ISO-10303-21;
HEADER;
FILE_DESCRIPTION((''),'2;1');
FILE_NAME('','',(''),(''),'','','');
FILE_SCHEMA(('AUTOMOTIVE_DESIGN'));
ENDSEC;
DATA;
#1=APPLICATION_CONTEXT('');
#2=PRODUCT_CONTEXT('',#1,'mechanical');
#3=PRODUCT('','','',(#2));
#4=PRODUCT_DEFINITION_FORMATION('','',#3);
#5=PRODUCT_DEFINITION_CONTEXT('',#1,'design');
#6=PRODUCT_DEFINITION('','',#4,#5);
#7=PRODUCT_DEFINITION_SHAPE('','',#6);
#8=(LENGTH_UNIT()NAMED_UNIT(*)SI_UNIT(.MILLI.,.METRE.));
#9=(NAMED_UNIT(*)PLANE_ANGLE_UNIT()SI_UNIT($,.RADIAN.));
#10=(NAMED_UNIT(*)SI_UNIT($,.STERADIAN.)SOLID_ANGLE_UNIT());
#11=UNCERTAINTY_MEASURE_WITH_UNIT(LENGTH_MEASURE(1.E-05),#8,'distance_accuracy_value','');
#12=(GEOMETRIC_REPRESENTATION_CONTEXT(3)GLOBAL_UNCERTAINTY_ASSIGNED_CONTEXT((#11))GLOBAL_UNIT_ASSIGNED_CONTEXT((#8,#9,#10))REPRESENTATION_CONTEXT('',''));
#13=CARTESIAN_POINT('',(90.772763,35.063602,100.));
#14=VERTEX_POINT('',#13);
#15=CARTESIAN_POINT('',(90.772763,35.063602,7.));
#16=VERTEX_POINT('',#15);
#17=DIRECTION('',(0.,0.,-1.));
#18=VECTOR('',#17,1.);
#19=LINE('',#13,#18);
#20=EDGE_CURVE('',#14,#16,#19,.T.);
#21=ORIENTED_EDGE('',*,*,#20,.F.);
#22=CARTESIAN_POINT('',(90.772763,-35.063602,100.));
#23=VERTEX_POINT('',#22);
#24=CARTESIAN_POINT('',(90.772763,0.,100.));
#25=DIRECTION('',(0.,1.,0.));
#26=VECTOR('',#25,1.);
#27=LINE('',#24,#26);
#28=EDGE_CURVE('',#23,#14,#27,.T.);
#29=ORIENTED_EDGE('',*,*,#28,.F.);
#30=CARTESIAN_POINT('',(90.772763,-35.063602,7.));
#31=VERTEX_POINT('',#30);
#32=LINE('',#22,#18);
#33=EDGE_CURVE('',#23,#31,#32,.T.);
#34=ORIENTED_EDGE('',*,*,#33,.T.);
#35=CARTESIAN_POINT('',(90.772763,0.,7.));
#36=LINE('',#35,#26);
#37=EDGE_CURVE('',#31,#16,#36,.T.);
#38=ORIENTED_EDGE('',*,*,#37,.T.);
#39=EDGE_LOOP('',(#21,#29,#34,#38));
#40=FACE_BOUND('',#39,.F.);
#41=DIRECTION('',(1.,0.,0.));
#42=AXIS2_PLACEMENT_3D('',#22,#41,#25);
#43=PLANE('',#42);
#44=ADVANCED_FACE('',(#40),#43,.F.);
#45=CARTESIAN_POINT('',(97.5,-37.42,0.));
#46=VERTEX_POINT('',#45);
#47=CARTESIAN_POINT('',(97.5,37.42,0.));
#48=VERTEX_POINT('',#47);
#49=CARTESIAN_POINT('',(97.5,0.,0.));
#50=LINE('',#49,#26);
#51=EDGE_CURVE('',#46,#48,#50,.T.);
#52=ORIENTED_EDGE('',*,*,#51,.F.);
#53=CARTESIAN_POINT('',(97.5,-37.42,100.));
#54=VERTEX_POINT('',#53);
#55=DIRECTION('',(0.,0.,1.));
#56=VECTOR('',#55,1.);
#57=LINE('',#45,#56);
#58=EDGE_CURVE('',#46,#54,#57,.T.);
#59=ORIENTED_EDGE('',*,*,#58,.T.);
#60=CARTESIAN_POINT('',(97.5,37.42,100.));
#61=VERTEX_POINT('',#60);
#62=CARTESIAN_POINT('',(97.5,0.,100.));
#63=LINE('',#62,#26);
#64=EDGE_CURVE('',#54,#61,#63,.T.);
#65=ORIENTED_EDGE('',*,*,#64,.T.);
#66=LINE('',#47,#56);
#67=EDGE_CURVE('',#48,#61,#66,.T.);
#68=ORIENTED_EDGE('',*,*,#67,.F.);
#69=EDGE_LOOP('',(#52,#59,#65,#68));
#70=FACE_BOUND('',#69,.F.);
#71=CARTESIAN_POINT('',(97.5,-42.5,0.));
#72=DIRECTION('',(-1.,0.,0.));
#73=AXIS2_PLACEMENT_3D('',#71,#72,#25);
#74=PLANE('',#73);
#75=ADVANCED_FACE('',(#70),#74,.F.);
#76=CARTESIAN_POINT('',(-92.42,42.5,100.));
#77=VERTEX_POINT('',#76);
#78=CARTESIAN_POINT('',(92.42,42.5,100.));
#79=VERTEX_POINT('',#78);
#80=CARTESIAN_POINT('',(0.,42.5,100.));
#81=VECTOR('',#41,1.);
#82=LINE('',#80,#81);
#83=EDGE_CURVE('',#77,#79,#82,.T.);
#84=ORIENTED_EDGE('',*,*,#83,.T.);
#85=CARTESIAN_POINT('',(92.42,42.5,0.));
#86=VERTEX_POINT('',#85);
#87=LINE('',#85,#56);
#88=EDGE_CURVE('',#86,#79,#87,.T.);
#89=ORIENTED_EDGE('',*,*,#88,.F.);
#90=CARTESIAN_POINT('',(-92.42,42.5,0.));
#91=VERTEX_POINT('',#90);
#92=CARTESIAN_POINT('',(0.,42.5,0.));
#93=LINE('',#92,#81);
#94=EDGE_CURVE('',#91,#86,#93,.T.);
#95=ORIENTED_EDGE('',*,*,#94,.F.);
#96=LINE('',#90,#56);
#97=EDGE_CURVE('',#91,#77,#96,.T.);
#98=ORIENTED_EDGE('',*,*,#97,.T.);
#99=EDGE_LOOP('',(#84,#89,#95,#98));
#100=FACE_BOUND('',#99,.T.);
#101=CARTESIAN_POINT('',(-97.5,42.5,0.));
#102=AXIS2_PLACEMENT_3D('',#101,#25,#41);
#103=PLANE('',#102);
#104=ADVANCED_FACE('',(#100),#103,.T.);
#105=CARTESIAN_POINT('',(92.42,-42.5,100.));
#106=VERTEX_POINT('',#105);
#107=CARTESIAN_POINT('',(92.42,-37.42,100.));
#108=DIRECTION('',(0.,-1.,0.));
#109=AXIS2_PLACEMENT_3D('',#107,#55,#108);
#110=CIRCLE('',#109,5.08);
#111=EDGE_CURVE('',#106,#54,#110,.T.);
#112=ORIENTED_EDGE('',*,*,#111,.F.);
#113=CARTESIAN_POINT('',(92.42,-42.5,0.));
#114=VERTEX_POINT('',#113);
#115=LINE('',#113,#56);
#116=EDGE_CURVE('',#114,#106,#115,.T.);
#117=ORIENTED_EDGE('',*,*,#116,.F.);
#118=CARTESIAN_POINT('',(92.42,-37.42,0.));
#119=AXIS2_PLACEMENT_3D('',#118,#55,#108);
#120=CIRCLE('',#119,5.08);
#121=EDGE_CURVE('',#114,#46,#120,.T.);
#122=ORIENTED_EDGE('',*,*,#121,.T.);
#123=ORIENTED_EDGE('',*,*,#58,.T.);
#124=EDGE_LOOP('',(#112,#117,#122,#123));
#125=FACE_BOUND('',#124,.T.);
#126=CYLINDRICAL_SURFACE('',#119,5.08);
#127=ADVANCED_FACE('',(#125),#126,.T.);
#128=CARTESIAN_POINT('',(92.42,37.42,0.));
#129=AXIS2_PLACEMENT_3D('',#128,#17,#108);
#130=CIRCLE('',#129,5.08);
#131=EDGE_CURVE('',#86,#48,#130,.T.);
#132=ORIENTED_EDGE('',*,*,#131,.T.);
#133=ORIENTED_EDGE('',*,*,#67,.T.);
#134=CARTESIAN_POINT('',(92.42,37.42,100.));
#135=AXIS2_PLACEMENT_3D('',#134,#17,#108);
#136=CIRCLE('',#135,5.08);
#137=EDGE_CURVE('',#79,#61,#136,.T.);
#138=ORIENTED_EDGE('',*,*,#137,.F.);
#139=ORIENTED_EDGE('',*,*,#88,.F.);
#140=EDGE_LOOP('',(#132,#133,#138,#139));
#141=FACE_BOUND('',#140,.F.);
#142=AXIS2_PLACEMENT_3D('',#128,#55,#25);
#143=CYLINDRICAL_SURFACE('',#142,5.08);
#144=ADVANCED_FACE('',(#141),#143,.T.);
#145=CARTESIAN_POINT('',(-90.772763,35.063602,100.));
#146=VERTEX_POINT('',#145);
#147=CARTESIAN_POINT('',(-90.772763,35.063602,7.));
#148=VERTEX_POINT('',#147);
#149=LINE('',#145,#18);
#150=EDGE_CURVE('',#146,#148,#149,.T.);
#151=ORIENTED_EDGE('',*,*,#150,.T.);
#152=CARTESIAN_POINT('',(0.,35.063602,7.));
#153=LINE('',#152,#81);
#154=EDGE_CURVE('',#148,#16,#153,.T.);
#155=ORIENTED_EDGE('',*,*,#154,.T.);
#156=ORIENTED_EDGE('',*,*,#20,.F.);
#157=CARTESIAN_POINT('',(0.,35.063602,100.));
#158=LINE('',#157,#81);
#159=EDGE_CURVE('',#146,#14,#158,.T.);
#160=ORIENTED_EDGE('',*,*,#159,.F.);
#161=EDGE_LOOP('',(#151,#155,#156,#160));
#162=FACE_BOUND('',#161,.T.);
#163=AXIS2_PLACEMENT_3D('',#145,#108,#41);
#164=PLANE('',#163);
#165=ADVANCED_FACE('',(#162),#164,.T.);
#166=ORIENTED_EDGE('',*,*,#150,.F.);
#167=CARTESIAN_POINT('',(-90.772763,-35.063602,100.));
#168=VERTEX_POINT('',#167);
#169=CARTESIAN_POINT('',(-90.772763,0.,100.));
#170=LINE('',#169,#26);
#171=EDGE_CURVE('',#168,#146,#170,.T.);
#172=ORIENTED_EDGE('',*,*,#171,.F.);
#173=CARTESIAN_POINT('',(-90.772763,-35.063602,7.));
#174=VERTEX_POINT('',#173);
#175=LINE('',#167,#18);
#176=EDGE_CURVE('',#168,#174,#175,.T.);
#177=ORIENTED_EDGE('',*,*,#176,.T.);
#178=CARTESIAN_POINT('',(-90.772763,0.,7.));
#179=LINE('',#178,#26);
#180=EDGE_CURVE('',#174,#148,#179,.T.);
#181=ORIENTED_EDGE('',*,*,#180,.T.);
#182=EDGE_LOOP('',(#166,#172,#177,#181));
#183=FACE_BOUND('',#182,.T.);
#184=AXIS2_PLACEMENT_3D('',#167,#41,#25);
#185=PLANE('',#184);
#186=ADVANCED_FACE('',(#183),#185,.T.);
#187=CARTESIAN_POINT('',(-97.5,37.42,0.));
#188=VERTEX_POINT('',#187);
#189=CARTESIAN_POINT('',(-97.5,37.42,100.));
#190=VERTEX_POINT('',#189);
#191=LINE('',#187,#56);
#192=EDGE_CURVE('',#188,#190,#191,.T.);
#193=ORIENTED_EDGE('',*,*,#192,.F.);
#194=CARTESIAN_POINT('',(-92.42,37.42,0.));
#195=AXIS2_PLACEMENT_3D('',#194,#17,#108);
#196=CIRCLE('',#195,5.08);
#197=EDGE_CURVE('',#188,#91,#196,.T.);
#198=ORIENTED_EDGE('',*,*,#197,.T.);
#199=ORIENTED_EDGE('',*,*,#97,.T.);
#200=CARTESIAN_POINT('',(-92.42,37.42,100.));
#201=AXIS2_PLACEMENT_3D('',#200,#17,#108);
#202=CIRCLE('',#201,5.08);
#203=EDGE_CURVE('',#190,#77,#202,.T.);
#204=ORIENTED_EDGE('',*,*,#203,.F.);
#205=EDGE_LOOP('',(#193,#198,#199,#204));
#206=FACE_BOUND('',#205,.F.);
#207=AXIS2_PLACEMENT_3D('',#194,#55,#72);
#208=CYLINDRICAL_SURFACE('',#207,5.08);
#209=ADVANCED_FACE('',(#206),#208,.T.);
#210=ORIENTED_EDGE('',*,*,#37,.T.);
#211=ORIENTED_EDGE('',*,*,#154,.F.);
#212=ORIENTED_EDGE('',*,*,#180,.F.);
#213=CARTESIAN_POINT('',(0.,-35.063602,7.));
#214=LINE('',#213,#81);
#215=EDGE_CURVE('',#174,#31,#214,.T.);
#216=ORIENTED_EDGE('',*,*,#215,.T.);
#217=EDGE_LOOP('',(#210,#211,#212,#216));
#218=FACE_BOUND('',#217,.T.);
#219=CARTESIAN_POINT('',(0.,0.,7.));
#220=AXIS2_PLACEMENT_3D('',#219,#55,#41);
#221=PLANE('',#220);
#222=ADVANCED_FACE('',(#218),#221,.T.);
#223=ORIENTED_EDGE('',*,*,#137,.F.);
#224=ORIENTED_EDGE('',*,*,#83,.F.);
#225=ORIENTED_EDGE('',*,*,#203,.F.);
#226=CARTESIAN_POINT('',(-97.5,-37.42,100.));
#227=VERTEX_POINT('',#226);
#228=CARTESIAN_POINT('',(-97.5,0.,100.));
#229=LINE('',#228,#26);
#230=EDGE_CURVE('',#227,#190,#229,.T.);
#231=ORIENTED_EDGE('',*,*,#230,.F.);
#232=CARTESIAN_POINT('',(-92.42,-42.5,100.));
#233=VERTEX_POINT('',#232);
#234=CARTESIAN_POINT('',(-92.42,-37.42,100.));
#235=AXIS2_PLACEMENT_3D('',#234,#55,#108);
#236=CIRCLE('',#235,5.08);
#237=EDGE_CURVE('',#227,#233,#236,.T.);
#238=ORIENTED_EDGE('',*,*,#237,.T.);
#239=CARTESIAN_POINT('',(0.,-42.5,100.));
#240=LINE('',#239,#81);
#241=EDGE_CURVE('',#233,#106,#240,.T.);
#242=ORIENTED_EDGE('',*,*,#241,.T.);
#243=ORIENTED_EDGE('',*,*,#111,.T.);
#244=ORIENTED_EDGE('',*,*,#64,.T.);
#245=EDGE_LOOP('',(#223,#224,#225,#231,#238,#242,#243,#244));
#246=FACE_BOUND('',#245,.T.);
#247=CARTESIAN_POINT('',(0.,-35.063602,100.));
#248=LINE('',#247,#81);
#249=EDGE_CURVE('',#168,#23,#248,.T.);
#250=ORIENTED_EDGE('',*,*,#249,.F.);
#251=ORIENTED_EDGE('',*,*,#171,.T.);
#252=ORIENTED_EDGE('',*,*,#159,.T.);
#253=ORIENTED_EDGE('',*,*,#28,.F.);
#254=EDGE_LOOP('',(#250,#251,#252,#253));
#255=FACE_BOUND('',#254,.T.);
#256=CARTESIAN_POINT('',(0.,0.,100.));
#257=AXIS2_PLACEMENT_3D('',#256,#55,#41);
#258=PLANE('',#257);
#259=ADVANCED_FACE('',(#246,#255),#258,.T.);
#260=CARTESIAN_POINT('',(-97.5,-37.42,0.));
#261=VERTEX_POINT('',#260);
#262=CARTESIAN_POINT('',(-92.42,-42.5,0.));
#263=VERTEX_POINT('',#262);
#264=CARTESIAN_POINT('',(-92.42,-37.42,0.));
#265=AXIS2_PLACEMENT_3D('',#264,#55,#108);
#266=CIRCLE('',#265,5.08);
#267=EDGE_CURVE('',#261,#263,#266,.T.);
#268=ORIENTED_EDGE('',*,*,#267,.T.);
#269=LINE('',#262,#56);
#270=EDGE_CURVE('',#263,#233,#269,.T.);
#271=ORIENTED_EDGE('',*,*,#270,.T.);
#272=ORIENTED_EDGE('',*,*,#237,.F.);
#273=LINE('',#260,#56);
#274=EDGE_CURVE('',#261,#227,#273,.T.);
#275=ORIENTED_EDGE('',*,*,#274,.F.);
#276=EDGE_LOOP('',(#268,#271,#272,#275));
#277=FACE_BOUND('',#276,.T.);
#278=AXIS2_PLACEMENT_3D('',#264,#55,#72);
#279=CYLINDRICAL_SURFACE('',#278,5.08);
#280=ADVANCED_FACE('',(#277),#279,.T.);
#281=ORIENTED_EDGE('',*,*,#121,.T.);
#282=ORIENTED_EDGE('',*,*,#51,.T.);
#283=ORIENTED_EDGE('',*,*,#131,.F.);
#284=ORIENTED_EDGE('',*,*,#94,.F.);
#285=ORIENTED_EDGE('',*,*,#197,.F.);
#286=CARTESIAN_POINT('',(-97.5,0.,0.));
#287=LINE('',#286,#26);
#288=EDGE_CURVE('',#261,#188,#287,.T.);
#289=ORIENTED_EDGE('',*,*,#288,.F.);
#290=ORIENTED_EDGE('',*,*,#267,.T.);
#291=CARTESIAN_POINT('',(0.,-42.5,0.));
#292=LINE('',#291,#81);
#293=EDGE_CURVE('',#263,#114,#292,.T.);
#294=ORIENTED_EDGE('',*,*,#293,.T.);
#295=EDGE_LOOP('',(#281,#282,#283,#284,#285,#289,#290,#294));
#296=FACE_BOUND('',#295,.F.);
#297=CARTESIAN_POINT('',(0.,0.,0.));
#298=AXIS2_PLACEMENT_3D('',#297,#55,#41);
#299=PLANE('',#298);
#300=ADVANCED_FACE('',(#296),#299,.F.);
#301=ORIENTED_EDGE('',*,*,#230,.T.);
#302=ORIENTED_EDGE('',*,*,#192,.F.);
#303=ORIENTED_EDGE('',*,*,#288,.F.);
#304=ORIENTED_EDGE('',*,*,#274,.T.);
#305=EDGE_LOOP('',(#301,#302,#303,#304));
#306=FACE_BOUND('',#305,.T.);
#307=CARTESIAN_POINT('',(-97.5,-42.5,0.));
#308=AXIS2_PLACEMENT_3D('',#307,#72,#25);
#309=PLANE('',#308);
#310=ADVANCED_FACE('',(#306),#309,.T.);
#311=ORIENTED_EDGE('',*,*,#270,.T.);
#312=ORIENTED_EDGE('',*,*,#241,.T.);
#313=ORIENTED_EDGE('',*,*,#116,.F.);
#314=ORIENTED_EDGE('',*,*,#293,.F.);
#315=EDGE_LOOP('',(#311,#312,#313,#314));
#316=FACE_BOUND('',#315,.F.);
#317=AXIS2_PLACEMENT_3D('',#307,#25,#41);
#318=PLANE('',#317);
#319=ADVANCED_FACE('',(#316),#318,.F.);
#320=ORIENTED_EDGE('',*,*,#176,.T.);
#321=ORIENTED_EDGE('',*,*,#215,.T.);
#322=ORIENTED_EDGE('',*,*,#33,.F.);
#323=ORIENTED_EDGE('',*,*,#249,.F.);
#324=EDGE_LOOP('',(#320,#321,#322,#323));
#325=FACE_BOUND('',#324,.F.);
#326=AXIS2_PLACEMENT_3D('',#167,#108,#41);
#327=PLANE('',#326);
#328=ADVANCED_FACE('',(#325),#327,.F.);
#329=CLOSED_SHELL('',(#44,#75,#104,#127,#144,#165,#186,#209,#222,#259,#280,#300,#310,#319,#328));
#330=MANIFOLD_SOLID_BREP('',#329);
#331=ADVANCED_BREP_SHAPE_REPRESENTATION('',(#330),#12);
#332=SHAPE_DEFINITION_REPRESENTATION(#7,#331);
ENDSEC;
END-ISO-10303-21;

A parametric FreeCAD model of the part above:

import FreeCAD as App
import Part
import Sketcher
from FreeCAD import Vector


def edges_at(feature, points):
    """Names of the edges that pass closest to the given points."""
    edges = feature.Shape.Edges
    near = lambda p: min(range(len(edges)), key=lambda i: edges[i].distToShape(Part.Vertex(*p))[0])
    return sorted({f"Edge{near(p) + 1}" for p in points})

doc = App.newDocument("Part")
body = doc.addObject("PartDesign::Body", "Body")

sketch1 = doc.addObject("Sketcher::SketchObject", "Sketch")
body.addObject(sketch1)
sketch1.AttachmentSupport = (doc.XY_Plane, [""])
sketch1.MapMode = "FlatFace"
sketch1.addGeometry([
    Part.LineSegment(Vector(-98, 42, 0), Vector(-98, -42, 0)),
    Part.LineSegment(Vector(-98, -42, 0), Vector(98, -42, 0)),
    Part.LineSegment(Vector(98, -42, 0), Vector(98, 42, 0)),
    Part.LineSegment(Vector(98, 42, 0), Vector(-98, 42, 0)),
], False)
sketch1.addConstraint([
    Sketcher.Constraint("Coincident", 0, 2, 1, 1),
    Sketcher.Constraint("Coincident", 1, 2, 2, 1),
    Sketcher.Constraint("Coincident", 2, 2, 3, 1),
    Sketcher.Constraint("Coincident", 3, 2, 0, 1),
    Sketcher.Constraint("Vertical", 0),
    Sketcher.Constraint("Horizontal", 1),
    Sketcher.Constraint("Vertical", 2),
    Sketcher.Constraint("Horizontal", 3),
    Sketcher.Constraint("Symmetric", 0, 2, 2, 2, -1, 1),
    Sketcher.Constraint("DistanceX", 1, 1, 1, 2, 195.0),
    Sketcher.Constraint("DistanceY", 0, 2, 0, 1, 85.0),
])
pad1 = doc.addObject("PartDesign::Pad", "Pad")
body.addObject(pad1)
pad1.Profile = sketch1
pad1.Length = 100

sketch2 = doc.addObject("Sketcher::SketchObject", "Sketch001")
body.addObject(sketch2)
sketch2.AttachmentSupport = (doc.XY_Plane, [""])
sketch2.MapMode = "FlatFace"
sketch2.AttachmentOffset = App.Placement(Vector(0, 0, 100), App.Rotation())
sketch2.addGeometry([
    Part.LineSegment(Vector(-91, 35, 0), Vector(-91, -35, 0)),
    Part.LineSegment(Vector(-91, -35, 0), Vector(91, -35, 0)),
    Part.LineSegment(Vector(91, -35, 0), Vector(91, 35, 0)),
    Part.LineSegment(Vector(91, 35, 0), Vector(-91, 35, 0)),
], False)
sketch2.addConstraint([
    Sketcher.Constraint("Coincident", 0, 2, 1, 1),
    Sketcher.Constraint("Coincident", 1, 2, 2, 1),
    Sketcher.Constraint("Coincident", 2, 2, 3, 1),
    Sketcher.Constraint("Coincident", 3, 2, 0, 1),
    Sketcher.Constraint("Vertical", 0),
    Sketcher.Constraint("Horizontal", 1),
    Sketcher.Constraint("Vertical", 2),
    Sketcher.Constraint("Horizontal", 3),
    Sketcher.Constraint("Symmetric", 0, 2, 2, 2, -1, 1),
    Sketcher.Constraint("DistanceX", 1, 1, 1, 2, 181.545526),
    Sketcher.Constraint("DistanceY", 0, 2, 0, 1, 70.127204),
])
pocket1 = doc.addObject("PartDesign::Pocket", "Pocket")
body.addObject(pocket1)
pocket1.Profile = sketch2
pocket1.Length = 93
doc.recompute()

fillet = doc.addObject("PartDesign::Fillet", "Fillet")
body.addObject(fillet)
fillet.Base = (pocket1, edges_at(pocket1, [
    (97.5, -42.5, 50),
    (97.5, 42.5, 50),
    (-97.5, -42.5, 50),
    (-97.5, 42.5, 50),
]))
fillet.Radius = 5.08

doc.recompute()
